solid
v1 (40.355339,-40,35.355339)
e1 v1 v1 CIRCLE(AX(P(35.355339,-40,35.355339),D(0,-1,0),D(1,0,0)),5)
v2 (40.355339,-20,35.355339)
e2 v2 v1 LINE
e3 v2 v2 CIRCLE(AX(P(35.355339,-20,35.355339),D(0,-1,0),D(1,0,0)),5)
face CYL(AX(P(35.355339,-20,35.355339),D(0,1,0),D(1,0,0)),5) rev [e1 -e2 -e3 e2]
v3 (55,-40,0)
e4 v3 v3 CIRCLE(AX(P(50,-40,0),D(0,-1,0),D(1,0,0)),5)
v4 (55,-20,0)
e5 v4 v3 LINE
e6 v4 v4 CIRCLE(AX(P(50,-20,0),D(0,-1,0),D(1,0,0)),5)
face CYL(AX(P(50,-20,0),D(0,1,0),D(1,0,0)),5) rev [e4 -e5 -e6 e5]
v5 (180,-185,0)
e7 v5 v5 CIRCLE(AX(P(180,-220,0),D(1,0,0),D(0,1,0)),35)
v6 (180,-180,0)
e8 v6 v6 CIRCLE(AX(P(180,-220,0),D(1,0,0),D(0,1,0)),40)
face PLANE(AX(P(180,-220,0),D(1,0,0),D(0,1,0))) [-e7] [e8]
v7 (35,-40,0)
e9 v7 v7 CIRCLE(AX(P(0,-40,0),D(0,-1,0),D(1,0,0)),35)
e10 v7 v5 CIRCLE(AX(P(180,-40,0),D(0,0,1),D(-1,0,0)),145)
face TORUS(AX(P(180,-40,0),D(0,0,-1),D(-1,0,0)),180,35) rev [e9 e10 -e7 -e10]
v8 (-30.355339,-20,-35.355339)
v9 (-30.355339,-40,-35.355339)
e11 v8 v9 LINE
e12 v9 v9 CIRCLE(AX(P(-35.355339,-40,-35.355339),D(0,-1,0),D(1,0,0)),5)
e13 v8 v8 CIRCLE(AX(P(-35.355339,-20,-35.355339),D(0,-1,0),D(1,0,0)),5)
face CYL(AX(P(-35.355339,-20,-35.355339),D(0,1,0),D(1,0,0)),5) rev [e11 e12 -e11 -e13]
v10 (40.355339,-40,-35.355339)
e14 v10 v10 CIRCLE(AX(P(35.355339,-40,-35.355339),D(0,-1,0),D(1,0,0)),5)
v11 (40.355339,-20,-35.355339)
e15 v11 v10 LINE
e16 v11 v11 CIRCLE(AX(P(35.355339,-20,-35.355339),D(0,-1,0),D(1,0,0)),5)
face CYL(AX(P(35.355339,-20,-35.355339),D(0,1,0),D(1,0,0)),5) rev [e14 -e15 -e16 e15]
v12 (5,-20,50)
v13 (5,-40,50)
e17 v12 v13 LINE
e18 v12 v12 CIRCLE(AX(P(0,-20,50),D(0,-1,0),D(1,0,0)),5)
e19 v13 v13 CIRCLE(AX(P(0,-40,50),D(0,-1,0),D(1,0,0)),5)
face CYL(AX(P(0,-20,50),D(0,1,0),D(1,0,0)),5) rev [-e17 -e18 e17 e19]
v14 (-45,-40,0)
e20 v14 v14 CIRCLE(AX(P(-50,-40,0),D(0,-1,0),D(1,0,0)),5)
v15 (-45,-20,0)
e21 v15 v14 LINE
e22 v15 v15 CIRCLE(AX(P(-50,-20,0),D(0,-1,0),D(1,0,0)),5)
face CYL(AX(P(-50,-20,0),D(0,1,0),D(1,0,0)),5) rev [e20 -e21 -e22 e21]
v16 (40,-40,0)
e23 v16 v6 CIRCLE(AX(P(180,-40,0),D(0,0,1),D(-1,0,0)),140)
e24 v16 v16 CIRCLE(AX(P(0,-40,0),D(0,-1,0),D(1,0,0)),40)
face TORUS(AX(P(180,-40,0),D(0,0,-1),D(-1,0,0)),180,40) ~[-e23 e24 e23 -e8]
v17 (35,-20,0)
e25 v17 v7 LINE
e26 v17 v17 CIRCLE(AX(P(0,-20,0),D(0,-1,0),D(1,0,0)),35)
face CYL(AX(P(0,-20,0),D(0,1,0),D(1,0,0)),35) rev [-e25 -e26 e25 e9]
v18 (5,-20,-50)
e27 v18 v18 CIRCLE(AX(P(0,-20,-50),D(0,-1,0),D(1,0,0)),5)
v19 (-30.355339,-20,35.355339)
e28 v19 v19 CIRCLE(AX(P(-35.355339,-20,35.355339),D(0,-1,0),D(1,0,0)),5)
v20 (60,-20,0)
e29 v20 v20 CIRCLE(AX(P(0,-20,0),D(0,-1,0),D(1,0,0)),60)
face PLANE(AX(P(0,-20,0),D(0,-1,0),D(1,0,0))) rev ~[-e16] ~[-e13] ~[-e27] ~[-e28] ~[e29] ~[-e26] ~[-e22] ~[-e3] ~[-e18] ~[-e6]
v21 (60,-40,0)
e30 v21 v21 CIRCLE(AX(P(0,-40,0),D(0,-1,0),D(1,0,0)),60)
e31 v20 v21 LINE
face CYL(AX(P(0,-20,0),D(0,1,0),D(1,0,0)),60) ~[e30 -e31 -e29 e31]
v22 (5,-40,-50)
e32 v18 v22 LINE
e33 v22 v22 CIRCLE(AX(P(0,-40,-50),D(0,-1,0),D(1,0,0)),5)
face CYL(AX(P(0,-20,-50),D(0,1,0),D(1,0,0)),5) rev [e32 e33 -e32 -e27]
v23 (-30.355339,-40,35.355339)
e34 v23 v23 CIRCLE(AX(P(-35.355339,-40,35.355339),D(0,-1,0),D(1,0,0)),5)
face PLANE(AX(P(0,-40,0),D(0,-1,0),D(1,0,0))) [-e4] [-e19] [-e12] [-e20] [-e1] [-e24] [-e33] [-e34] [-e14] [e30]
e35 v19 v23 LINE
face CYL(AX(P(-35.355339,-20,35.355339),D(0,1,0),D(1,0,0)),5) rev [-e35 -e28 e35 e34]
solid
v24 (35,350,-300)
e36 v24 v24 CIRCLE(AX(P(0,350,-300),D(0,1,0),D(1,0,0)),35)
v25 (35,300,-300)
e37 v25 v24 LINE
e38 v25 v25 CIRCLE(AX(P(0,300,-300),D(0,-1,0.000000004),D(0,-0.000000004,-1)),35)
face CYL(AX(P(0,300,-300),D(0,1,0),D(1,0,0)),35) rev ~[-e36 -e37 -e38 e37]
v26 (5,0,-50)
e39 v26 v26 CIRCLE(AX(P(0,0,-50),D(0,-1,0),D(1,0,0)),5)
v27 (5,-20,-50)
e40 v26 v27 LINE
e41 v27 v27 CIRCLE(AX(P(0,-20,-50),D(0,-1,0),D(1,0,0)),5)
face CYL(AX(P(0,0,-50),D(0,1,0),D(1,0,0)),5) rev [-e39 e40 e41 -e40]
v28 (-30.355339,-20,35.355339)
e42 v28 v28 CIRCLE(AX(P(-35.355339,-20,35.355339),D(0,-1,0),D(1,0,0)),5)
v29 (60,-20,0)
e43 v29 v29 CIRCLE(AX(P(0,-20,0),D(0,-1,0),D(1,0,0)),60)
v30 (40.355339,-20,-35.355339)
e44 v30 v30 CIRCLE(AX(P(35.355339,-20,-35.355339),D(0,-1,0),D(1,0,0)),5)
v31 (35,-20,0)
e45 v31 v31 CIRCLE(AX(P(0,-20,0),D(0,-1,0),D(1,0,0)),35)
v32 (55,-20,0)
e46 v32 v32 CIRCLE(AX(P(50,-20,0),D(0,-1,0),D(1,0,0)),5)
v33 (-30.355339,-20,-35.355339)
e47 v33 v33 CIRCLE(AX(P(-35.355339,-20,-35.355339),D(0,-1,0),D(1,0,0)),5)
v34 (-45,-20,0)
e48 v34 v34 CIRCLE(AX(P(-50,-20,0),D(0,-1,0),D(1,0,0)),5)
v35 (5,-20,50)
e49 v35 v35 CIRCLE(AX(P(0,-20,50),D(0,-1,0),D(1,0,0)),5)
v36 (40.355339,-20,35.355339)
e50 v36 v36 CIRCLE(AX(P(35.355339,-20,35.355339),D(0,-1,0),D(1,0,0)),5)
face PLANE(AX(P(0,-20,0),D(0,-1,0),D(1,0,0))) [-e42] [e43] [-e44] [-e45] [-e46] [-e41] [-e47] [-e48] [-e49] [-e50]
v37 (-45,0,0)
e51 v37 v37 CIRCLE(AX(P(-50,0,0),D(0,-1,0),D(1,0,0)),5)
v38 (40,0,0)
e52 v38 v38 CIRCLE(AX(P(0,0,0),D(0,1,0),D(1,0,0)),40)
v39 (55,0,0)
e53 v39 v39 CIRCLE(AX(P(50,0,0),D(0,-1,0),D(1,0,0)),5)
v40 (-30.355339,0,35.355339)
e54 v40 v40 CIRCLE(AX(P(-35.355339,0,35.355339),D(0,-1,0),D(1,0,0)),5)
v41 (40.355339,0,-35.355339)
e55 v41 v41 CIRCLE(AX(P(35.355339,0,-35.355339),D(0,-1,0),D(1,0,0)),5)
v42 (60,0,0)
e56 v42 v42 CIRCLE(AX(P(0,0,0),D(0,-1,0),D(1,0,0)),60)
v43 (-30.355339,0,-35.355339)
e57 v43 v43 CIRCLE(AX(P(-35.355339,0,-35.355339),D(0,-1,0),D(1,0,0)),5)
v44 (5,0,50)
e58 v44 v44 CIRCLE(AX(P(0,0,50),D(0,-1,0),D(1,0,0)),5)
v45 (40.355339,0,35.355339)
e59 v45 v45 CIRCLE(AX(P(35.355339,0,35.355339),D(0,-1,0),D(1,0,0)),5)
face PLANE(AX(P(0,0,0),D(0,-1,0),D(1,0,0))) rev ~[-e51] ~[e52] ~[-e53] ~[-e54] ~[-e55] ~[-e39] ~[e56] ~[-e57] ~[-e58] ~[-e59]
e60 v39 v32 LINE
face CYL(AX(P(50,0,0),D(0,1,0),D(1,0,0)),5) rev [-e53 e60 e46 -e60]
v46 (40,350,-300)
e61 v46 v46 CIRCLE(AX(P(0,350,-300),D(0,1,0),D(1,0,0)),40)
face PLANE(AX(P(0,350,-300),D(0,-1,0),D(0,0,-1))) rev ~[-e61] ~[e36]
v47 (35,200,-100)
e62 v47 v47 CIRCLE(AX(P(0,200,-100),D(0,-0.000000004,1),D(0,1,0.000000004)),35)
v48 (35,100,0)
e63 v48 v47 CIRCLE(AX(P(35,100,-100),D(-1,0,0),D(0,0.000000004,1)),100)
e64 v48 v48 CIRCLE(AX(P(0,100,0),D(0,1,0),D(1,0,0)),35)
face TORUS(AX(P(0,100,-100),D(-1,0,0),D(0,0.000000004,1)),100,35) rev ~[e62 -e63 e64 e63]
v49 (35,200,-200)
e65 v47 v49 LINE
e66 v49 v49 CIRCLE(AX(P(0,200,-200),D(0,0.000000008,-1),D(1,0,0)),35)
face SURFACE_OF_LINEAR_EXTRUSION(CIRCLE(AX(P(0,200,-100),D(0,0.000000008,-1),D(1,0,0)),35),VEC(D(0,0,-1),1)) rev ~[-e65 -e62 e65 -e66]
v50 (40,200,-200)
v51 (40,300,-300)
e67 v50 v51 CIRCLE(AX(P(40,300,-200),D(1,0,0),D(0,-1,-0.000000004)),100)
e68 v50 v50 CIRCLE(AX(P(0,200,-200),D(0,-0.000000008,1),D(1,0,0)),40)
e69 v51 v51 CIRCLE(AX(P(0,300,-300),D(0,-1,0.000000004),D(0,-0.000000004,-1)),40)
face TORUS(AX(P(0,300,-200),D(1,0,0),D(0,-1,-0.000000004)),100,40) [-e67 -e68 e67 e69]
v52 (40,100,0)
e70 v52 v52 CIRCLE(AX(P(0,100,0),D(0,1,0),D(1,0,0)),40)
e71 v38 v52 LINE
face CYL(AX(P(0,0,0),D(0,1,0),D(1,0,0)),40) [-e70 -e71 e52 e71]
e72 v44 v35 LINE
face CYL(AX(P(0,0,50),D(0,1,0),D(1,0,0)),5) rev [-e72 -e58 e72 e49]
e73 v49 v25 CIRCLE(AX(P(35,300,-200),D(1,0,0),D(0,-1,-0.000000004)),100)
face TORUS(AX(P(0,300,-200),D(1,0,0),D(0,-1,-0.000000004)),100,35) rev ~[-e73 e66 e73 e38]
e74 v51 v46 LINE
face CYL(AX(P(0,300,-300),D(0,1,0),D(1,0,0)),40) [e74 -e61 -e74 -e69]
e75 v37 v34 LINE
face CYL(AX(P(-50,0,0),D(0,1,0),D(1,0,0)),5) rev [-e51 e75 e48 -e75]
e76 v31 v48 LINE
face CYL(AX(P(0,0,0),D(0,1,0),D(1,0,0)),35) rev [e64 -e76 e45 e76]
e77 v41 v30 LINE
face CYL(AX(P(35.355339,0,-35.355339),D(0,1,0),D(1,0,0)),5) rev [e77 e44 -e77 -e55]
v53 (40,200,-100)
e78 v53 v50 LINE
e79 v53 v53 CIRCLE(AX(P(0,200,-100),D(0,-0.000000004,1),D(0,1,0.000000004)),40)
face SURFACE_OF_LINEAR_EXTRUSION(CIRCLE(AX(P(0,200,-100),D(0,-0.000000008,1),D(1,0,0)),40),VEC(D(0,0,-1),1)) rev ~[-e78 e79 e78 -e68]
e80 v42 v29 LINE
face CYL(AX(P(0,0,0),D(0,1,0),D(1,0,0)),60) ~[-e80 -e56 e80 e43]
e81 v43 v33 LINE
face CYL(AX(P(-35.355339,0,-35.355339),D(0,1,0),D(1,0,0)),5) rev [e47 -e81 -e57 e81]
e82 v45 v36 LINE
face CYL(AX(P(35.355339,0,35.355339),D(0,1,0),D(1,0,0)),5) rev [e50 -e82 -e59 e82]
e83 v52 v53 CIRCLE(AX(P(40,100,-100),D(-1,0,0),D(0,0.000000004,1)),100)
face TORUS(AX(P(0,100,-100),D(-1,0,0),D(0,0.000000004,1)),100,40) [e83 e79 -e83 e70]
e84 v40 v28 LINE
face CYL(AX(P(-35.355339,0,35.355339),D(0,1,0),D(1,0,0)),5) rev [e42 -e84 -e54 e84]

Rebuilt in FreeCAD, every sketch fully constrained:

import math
import FreeCAD as App
import Part
import Sketcher

V = App.Vector

doc = App.newDocument("Part")
body = doc.addObject("PartDesign::Body", "Body")

# Sketch on XZ plane
sketch1 = body.newObject("Sketcher::SketchObject", "Sketch")
sketch1.AttachmentSupport = (doc.getObject("XZ_Plane"), [""])
sketch1.MapMode = "FlatFace"
sketch1.addGeometry([
    Part.Circle(V(0, 0, 0), V(0, 0, 1), 60),  # 0
    Part.Circle(V(-35, -35, 0), V(0, 0, 1), 5),  # 1
    Part.Circle(V(0, -50, 0), V(0, 0, 1), 5),  # 2
    Part.Circle(V(35, -35, 0), V(0, 0, 1), 5),  # 3
    Part.Circle(V(-50, 0, 0), V(0, 0, 1), 5),  # 4
    Part.Circle(V(-35, 35, 0), V(0, 0, 1), 5),  # 5
    Part.Circle(V(0, 0, 0), V(0, 0, 1), 35),  # 6
    Part.Circle(V(50, 0, 0), V(0, 0, 1), 5),  # 7
    Part.Circle(V(0, 50, 0), V(0, 0, 1), 5),  # 8
    Part.Circle(V(35, 35, 0), V(0, 0, 1), 5),  # 9
], False)
sketch1.addConstraint([
    Sketcher.Constraint("Coincident", 0, 3, -1, 1),
    Sketcher.Constraint("Coincident", 6, 3, -1, 1),
    Sketcher.Constraint("Equal", 1, 2),
    Sketcher.Constraint("Equal", 2, 3),
    Sketcher.Constraint("Equal", 3, 4),
    Sketcher.Constraint("Equal", 4, 5),
    Sketcher.Constraint("Equal", 5, 7),
    Sketcher.Constraint("Equal", 7, 8),
    Sketcher.Constraint("Equal", 8, 9),
    Sketcher.Constraint("Symmetric", 3, 3, 5, 3, -1, 1),
    Sketcher.Constraint("Symmetric", 4, 3, 7, 3, -1, 1),
    Sketcher.Constraint("Symmetric", 2, 3, 8, 3, -1, 1),
    Sketcher.Constraint("Symmetric", 1, 3, 9, 3, -1, 1),
    Sketcher.Constraint("Symmetric", 1, 3, 3, 3, -2),
    Sketcher.Constraint("PointOnObject", 2, 3, -2),
    Sketcher.Constraint("PointOnObject", 4, 3, -1),
    Sketcher.Constraint("Diameter", 0, 120.0),
    Sketcher.Constraint("Diameter", 1, 10.0),
    Sketcher.Constraint("Diameter", 6, 70.0),
    Sketcher.Constraint("DistanceY", 2, 3, -1, 1, 50.0),
    Sketcher.Constraint("DistanceX", 4, 3, -1, 1, 50.0),
    Sketcher.Constraint("DistanceX", 1, 3, -1, 1, 35.355339),
    Sketcher.Constraint("DistanceY", 1, 3, -1, 1, 35.355339),
])
pad1 = body.newObject("PartDesign::Pad", "Pad")
pad1.Profile = sketch1
pad1.Length = 20

# Sketch on XZ plane
sketch2 = body.newObject("Sketcher::SketchObject", "Sketch001")
sketch2.AttachmentSupport = (doc.getObject("XZ_Plane"), [""])
sketch2.MapMode = "FlatFace"
sketch2.addGeometry([
    Part.Circle(V(0, 0, 0), V(0, 0, 1), 40),
    Part.Circle(V(0, 0, 0), V(0, 0, 1), 35),
], False)
sketch2.addConstraint([
    Sketcher.Constraint("Coincident", 0, 3, -1, 1),
    Sketcher.Constraint("Coincident", 1, 3, -1, 1),
    Sketcher.Constraint("Diameter", 0, 80.0),
    Sketcher.Constraint("Diameter", 1, 70.0),
])

# Sketch on YZ plane
sketch3 = body.newObject("Sketcher::SketchObject", "Sketch002")
sketch3.AttachmentSupport = (doc.getObject("YZ_Plane"), [""])
sketch3.MapMode = "FlatFace"
sketch3.addGeometry([
    Part.LineSegment(V(0, 0, 0), V(100, 0, 0)),  # 0
    Part.ArcOfCircle(Part.Circle(V(100, -100, 0), V(0, 0, 1), 100), math.radians(0), math.radians(90)),  # 1
    Part.LineSegment(V(200, -100, 0), V(200, -200, 0)),  # 2
    Part.ArcOfCircle(Part.Circle(V(300, -200, 0), V(0, 0, 1), 100), math.radians(-180), math.radians(-90)),  # 3
    Part.LineSegment(V(300, -300, 0), V(350, -300, 0)),  # 4
], False)
sketch3.addConstraint([
    Sketcher.Constraint("Tangent", 0, 2, 1, 2),
    Sketcher.Constraint("Tangent", 1, 1, 2, 1),
    Sketcher.Constraint("Tangent", 2, 2, 3, 1),
    Sketcher.Constraint("Tangent", 3, 2, 4, 1),
    Sketcher.Constraint("Horizontal", 0),
    Sketcher.Constraint("Vertical", 2),
    Sketcher.Constraint("Horizontal", 4),
    Sketcher.Constraint("Coincident", 0, 1, -1, 1),
    Sketcher.Constraint("Equal", 1, 3),
    Sketcher.Constraint("Equal", 0, 2),
    Sketcher.Constraint("Radius", 1, 100.0),
    Sketcher.Constraint("DistanceX", 0, 1, 0, 2, 100.0),
    Sketcher.Constraint("DistanceX", 4, 1, 4, 2, 50.0),
])
doc.recompute()

additivepipe = body.newObject("PartDesign::AdditivePipe", "AdditivePipe")
additivepipe.Profile = sketch2
additivepipe.Spine = (sketch3, ["Edge1", "Edge2", "Edge3", "Edge4", "Edge5"])
body2 = doc.addObject("PartDesign::Body", "Body001")

# Sketch on XZ plane
sketch4 = body2.newObject("Sketcher::SketchObject", "Sketch003")
sketch4.AttachmentSupport = (doc.getObject("XZ_Plane001"), [""])
sketch4.MapMode = "FlatFace"
sketch4.AttachmentOffset = App.Placement(V(0, 0, 20), App.Rotation())
sketch4.addGeometry([
    Part.Circle(V(0, 0, 0), V(0, 0, 1), 60),  # 0
    Part.Circle(V(-35, -35, 0), V(0, 0, 1), 5),  # 1
    Part.Circle(V(0, -50, 0), V(0, 0, 1), 5),  # 2
    Part.Circle(V(35, -35, 0), V(0, 0, 1), 5),  # 3
    Part.Circle(V(-50, 0, 0), V(0, 0, 1), 5),  # 4
    Part.Circle(V(-35, 35, 0), V(0, 0, 1), 5),  # 5
    Part.Circle(V(0, 0, 0), V(0, 0, 1), 35),  # 6
    Part.Circle(V(50, 0, 0), V(0, 0, 1), 5),  # 7
    Part.Circle(V(0, 50, 0), V(0, 0, 1), 5),  # 8
    Part.Circle(V(35, 35, 0), V(0, 0, 1), 5),  # 9
], False)
sketch4.addConstraint([
    Sketcher.Constraint("Coincident", 0, 3, -1, 1),
    Sketcher.Constraint("Coincident", 6, 3, -1, 1),
    Sketcher.Constraint("Equal", 1, 2),
    Sketcher.Constraint("Equal", 2, 3),
    Sketcher.Constraint("Equal", 3, 4),
    Sketcher.Constraint("Equal", 4, 5),
    Sketcher.Constraint("Equal", 5, 7),
    Sketcher.Constraint("Equal", 7, 8),
    Sketcher.Constraint("Equal", 8, 9),
    Sketcher.Constraint("Symmetric", 3, 3, 5, 3, -1, 1),
    Sketcher.Constraint("Symmetric", 4, 3, 7, 3, -1, 1),
    Sketcher.Constraint("Symmetric", 2, 3, 8, 3, -1, 1),
    Sketcher.Constraint("Symmetric", 1, 3, 9, 3, -1, 1),
    Sketcher.Constraint("Symmetric", 1, 3, 3, 3, -2),
    Sketcher.Constraint("PointOnObject", 2, 3, -2),
    Sketcher.Constraint("PointOnObject", 4, 3, -1),
    Sketcher.Constraint("Diameter", 0, 120.0),
    Sketcher.Constraint("Diameter", 1, 10.0),
    Sketcher.Constraint("Diameter", 6, 70.0),
    Sketcher.Constraint("DistanceY", 2, 3, -1, 1, 50.0),
    Sketcher.Constraint("DistanceX", 4, 3, -1, 1, 50.0),
    Sketcher.Constraint("DistanceX", 1, 3, -1, 1, 35.355339),
    Sketcher.Constraint("DistanceY", 1, 3, -1, 1, 35.355339),
])
pad2 = body2.newObject("PartDesign::Pad", "Pad001")
pad2.Profile = sketch4
pad2.Length = 20

# Sketch on XZ plane
sketch5 = body2.newObject("Sketcher::SketchObject", "Sketch004")
sketch5.AttachmentSupport = (doc.getObject("XZ_Plane001"), [""])
sketch5.MapMode = "FlatFace"
sketch5.AttachmentOffset = App.Placement(V(0, 0, 40), App.Rotation())
sketch5.addGeometry([
    Part.Circle(V(0, 0, 0), V(0, 0, 1), 40),
    Part.Circle(V(0, 0, 0), V(0, 0, 1), 35),
], False)
sketch5.addGeometry(Part.LineSegment(V(180, 0, 0), V(180, -10, 0)), True)  # axis
sketch5.addConstraint([
    Sketcher.Constraint("Vertical", 2),
    Sketcher.Constraint("Coincident", 0, 3, -1, 1),
    Sketcher.Constraint("Coincident", 1, 3, -1, 1),
    Sketcher.Constraint("PointOnObject", 2, 1, -1),
    Sketcher.Constraint("Diameter", 0, 80.0),
    Sketcher.Constraint("Diameter", 1, 70.0),
    Sketcher.Constraint("DistanceY", 2, 2, 2, 1, 10.0),
    Sketcher.Constraint("DistanceX", -1, 1, 2, 1, 180.0),
])
revolution = body2.newObject("PartDesign::Revolution", "Revolution")
revolution.Profile = sketch5
revolution.ReferenceAxis = (sketch5, ["Axis0"])
revolution.Angle = 90
revolution.Reversed = True

doc.recompute()
